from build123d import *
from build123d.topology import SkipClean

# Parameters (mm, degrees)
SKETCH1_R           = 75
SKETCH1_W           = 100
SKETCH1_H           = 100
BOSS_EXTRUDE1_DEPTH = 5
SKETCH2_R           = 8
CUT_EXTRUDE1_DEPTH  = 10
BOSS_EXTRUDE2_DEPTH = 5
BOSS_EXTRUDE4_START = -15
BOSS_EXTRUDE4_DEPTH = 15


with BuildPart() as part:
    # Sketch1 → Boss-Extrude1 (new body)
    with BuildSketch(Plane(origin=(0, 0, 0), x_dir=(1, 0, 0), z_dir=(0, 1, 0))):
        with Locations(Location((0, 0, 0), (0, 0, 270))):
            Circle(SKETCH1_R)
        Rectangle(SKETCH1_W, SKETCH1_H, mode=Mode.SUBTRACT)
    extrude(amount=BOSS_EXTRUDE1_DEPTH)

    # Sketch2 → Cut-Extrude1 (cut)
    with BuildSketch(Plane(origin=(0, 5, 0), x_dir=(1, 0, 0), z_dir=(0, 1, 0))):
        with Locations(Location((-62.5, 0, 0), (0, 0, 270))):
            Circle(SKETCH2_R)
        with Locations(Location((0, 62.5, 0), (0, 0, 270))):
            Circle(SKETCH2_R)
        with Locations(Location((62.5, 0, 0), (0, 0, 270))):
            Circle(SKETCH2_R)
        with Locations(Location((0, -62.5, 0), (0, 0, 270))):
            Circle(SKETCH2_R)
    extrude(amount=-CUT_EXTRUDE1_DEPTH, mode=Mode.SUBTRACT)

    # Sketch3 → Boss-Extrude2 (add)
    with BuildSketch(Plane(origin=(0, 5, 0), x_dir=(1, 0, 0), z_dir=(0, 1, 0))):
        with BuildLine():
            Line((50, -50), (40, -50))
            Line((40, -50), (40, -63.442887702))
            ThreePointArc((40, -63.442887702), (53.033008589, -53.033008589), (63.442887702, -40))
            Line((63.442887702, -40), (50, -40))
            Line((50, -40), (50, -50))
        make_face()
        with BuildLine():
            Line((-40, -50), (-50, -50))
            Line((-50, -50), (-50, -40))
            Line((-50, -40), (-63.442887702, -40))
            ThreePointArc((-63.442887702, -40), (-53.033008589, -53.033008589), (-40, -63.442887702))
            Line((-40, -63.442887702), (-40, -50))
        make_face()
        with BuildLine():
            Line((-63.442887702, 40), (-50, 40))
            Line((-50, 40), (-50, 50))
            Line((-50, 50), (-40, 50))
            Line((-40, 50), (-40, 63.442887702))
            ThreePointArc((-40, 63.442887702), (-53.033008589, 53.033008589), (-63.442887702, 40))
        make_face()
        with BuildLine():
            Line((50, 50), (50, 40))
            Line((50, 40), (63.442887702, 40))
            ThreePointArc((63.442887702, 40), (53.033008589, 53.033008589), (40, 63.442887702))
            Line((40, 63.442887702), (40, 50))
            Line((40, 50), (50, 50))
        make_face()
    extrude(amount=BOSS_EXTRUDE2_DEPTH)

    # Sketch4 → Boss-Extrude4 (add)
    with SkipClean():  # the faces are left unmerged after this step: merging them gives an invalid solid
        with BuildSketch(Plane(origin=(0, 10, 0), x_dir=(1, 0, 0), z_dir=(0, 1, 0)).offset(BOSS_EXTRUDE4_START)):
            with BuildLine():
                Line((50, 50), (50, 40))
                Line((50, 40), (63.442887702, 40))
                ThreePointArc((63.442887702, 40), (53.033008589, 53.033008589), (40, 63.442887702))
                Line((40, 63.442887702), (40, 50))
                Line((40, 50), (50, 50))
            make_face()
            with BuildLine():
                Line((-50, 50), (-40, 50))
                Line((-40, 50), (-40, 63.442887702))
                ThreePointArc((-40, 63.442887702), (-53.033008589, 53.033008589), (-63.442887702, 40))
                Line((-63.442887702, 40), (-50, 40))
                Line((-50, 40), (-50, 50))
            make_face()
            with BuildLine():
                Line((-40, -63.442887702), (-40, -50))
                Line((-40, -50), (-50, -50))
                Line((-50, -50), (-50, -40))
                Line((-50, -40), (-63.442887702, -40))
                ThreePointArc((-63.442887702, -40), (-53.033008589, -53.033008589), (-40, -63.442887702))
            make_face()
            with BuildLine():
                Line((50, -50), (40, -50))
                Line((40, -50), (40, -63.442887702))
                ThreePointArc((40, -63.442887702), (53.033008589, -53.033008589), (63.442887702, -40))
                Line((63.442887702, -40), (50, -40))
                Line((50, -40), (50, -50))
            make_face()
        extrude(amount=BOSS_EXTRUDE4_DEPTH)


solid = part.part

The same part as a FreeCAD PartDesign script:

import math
import FreeCAD as App
import Part
import Sketcher

V = App.Vector

doc = App.newDocument("Part")
body = doc.addObject("PartDesign::Body", "Body")

# Sketch on XZ plane
sketch1 = body.newObject("Sketcher::SketchObject", "Sketch")
sketch1.AttachmentSupport = (doc.getObject("XZ_Plane"), [""])
sketch1.MapMode = "FlatFace"
sketch1.addGeometry([
    Part.Circle(V(0, 0, 0), V(0, 0, 1), 75),  # 0
    Part.LineSegment(V(50, 50, 0), V(-50, 50, 0)),  # 1
    Part.LineSegment(V(-50, 50, 0), V(-50, -50, 0)),  # 2
    Part.LineSegment(V(-50, -50, 0), V(50, -50, 0)),  # 3
    Part.LineSegment(V(50, -50, 0), V(50, 50, 0)),  # 4
], False)
sketch1.addConstraint([
    Sketcher.Constraint("Coincident", 1, 2, 2, 1),
    Sketcher.Constraint("Coincident", 2, 2, 3, 1),
    Sketcher.Constraint("Coincident", 3, 2, 4, 1),
    Sketcher.Constraint("Coincident", 4, 2, 1, 1),
    Sketcher.Constraint("Horizontal", 1),
    Sketcher.Constraint("Vertical", 2),
    Sketcher.Constraint("Horizontal", 3),
    Sketcher.Constraint("Vertical", 4),
    Sketcher.Constraint("Coincident", 0, 3, -1, 1),
    Sketcher.Constraint("Symmetric", 1, 2, 3, 2, -1, 1),
    Sketcher.Constraint("Equal", 3, 2),
    Sketcher.Constraint("Diameter", 0, 150.0),
    Sketcher.Constraint("DistanceX", 1, 2, 1, 1, 100.0),
])
pad1 = body.newObject("PartDesign::Pad", "Pad")
pad1.Profile = sketch1
pad1.Length = 5
pad1.Reversed = True

# Sketch on XZ plane
sketch2 = body.newObject("Sketcher::SketchObject", "Sketch001")
sketch2.AttachmentSupport = (doc.getObject("XZ_Plane"), [""])
sketch2.MapMode = "FlatFace"
sketch2.AttachmentOffset = App.Placement(V(0, 0, -5), App.Rotation())
sketch2.addGeometry([
    Part.Circle(V(-62, 0, 0), V(0, 0, 1), 8),
    Part.Circle(V(0, -62, 0), V(0, 0, 1), 8),
    Part.Circle(V(62, 0, 0), V(0, 0, 1), 8),
    Part.Circle(V(0, 62, 0), V(0, 0, 1), 8),
], False)
sketch2.addConstraint([
    Sketcher.Constraint("Equal", 0, 1),
    Sketcher.Constraint("Equal", 1, 2),
    Sketcher.Constraint("Equal", 2, 3),
    Sketcher.Constraint("Symmetric", 0, 3, 2, 3, -1, 1),
    Sketcher.Constraint("Symmetric", 1, 3, 3, 3, -1, 1),
    Sketcher.Constraint("PointOnObject", 0, 3, -1),
    Sketcher.Constraint("PointOnObject", 1, 3, -2),
    Sketcher.Constraint("Diameter", 0, 16.0),
    Sketcher.Constraint("DistanceX", 0, 3, 2, 3, 125.0),
    Sketcher.Constraint("DistanceY", 1, 3, 3, 3, 125.0),
])
pocket1 = body.newObject("PartDesign::Pocket", "Pocket")
pocket1.Profile = sketch2
pocket1.Length = 10
pocket1.Reversed = True

# Sketch on XZ plane
sketch3 = body.newObject("Sketcher::SketchObject", "Sketch002")
sketch3.AttachmentSupport = (doc.getObject("XZ_Plane"), [""])
sketch3.MapMode = "FlatFace"
sketch3.AttachmentOffset = App.Placement(V(0, 0, -5), App.Rotation())
sketch3.addGeometry([
    Part.LineSegment(V(50, 50, 0), V(40, 50, 0)),  # 0
    Part.LineSegment(V(40, 50, 0), V(40, 63, 0)),  # 1
    Part.ArcOfCircle(Part.Circle(V(0, 0, 0), V(0, 0, 1), 75), math.radians(32), math.radians(58)),  # 2
    Part.LineSegment(V(63, 40, 0), V(50, 40, 0)),  # 3
    Part.LineSegment(V(50, 40, 0), V(50, 50, 0)),  # 4
    Part.LineSegment(V(-40, 50, 0), V(-50, 50, 0)),  # 5
    Part.LineSegment(V(-50, 50, 0), V(-50, 40, 0)),  # 6
    Part.LineSegment(V(-50, 40, 0), V(-63, 40, 0)),  # 7
    Part.ArcOfCircle(Part.Circle(V(0, 0, 0), V(0, 0, 1), 75), math.radians(122), math.radians(148)),  # 8
    Part.LineSegment(V(-40, 63, 0), V(-40, 50, 0)),  # 9
    Part.LineSegment(V(-63, -40, 0), V(-50, -40, 0)),  # 10
    Part.LineSegment(V(-50, -40, 0), V(-50, -50, 0)),  # 11
    Part.LineSegment(V(-50, -50, 0), V(-40, -50, 0)),  # 12
    Part.LineSegment(V(-40, -50, 0), V(-40, -63, 0)),  # 13
    Part.ArcOfCircle(Part.Circle(V(0, 0, 0), V(0, 0, 1), 75), math.radians(-148), math.radians(-122)),  # 14
    Part.LineSegment(V(50, -50, 0), V(50, -40, 0)),  # 15
    Part.LineSegment(V(50, -40, 0), V(63, -40, 0)),  # 16
    Part.ArcOfCircle(Part.Circle(V(0, 0, 0), V(0, 0, 1), 75), math.radians(-58), math.radians(-32)),  # 17
    Part.LineSegment(V(40, -63, 0), V(40, -50, 0)),  # 18
    Part.LineSegment(V(40, -50, 0), V(50, -50, 0)),  # 19
], False)
sketch3.addConstraint([
    Sketcher.Constraint("Coincident", 0, 2, 1, 1),
    Sketcher.Constraint("Coincident", 1, 2, 2, 2),
    Sketcher.Constraint("Coincident", 2, 1, 3, 1),
    Sketcher.Constraint("Coincident", 3, 2, 4, 1),
    Sketcher.Constraint("Coincident", 4, 2, 0, 1),
    Sketcher.Constraint("Coincident", 5, 2, 6, 1),
    Sketcher.Constraint("Coincident", 6, 2, 7, 1),
    Sketcher.Constraint("Coincident", 7, 2, 8, 2),
    Sketcher.Constraint("Coincident", 8, 1, 9, 1),
    Sketcher.Constraint("Coincident", 9, 2, 5, 1),
    Sketcher.Constraint("Coincident", 10, 2, 11, 1),
    Sketcher.Constraint("Coincident", 11, 2, 12, 1),
    Sketcher.Constraint("Coincident", 12, 2, 13, 1),
    Sketcher.Constraint("Coincident", 13, 2, 14, 2),
    Sketcher.Constraint("Coincident", 14, 1, 10, 1),
    Sketcher.Constraint("Coincident", 15, 2, 16, 1),
    Sketcher.Constraint("Coincident", 16, 2, 17, 2),
    Sketcher.Constraint("Coincident", 17, 1, 18, 1),
    Sketcher.Constraint("Coincident", 18, 2, 19, 1),
    Sketcher.Constraint("Coincident", 19, 2, 15, 1),
    Sketcher.Constraint("Horizontal", 0),
    Sketcher.Constraint("Vertical", 1),
    Sketcher.Constraint("Horizontal", 3),
    Sketcher.Constraint("Vertical", 4),
    Sketcher.Constraint("Horizontal", 5),
    Sketcher.Constraint("Vertical", 6),
    Sketcher.Constraint("Horizontal", 7),
    Sketcher.Constraint("Vertical", 9),
    Sketcher.Constraint("Horizontal", 10),
    Sketcher.Constraint("Vertical", 11),
    Sketcher.Constraint("Horizontal", 12),
    Sketcher.Constraint("Vertical", 13),
    Sketcher.Constraint("Vertical", 15),
    Sketcher.Constraint("Horizontal", 16),
    Sketcher.Constraint("Vertical", 18),
    Sketcher.Constraint("Horizontal", 19),
    Sketcher.Constraint("Coincident", 2, 3, -1, 1),
    Sketcher.Constraint("Coincident", 8, 3, -1, 1),
    Sketcher.Constraint("Coincident", 14, 3, -1, 1),
    Sketcher.Constraint("Coincident", 17, 3, -1, 1),
    Sketcher.Constraint("Equal", 2, 8),
    Sketcher.Constraint("Equal", 8, 14),
    Sketcher.Constraint("Equal", 14, 17),
    Sketcher.Constraint("Symmetric", 3, 2, 10, 2, -1, 1),
    Sketcher.Constraint("Symmetric", 0, 2, 12, 2, -1, 1),
    Sketcher.Constraint("Symmetric", 6, 2, 15, 2, -1, 1),
    Sketcher.Constraint("Symmetric", 9, 2, 18, 2, -1, 1),
    Sketcher.Constraint("Symmetric", 4, 2, 5, 2, -2),
    Sketcher.Constraint("Horizontal", 3, 2, 6, 2),
    Sketcher.Constraint("Horizontal", 1, 2, 8, 1),
    Sketcher.Constraint("Equal", 16, 1),
    Sketcher.Constraint("Equal", 19, 4),
    Sketcher.Constraint("Radius", 2, 75.0),
    Sketcher.Constraint("DistanceX", 0, 2, 0, 1, 10.0),
    Sketcher.Constraint("DistanceX", -1, 1, 0, 2, 40.0),
])
pad2 = body.newObject("PartDesign::Pad", "Pad001")
pad2.Profile = sketch3
pad2.Length = 5
pad2.Reversed = True

# Sketch on XZ plane
sketch4 = body.newObject("Sketcher::SketchObject", "Sketch003")
sketch4.AttachmentSupport = (doc.getObject("XZ_Plane"), [""])
sketch4.MapMode = "FlatFace"
sketch4.AttachmentOffset = App.Placement(V(0, 0, 5), App.Rotation())
sketch4.addGeometry([
    Part.LineSegment(V(50, -50, 0), V(50, -40, 0)),  # 0
    Part.LineSegment(V(50, -40, 0), V(63, -40, 0)),  # 1
    Part.ArcOfCircle(Part.Circle(V(0, 0, 0), V(0, 0, 1), 75), math.radians(-58), math.radians(-32)),  # 2
    Part.LineSegment(V(40, -63, 0), V(40, -50, 0)),  # 3
    Part.LineSegment(V(40, -50, 0), V(50, -50, 0)),  # 4
    Part.LineSegment(V(-50, -50, 0), V(-40, -50, 0)),  # 5
    Part.LineSegment(V(-40, -50, 0), V(-40, -63, 0)),  # 6
    Part.ArcOfCircle(Part.Circle(V(0, 0, 0), V(0, 0, 1), 75), math.radians(-148), math.radians(-122)),  # 7
    Part.LineSegment(V(-63, -40, 0), V(-50, -40, 0)),  # 8
    Part.LineSegment(V(-50, -40, 0), V(-50, -50, 0)),  # 9
    Part.LineSegment(V(-40, 63, 0), V(-40, 50, 0)),  # 10
    Part.LineSegment(V(-40, 50, 0), V(-50, 50, 0)),  # 11
    Part.LineSegment(V(-50, 50, 0), V(-50, 40, 0)),  # 12
    Part.LineSegment(V(-50, 40, 0), V(-63, 40, 0)),  # 13
    Part.ArcOfCircle(Part.Circle(V(0, 0, 0), V(0, 0, 1), 75), math.radians(122), math.radians(148)),  # 14
    Part.LineSegment(V(50, 50, 0), V(40, 50, 0)),  # 15
    Part.LineSegment(V(40, 50, 0), V(40, 63, 0)),  # 16
    Part.ArcOfCircle(Part.Circle(V(0, 0, 0), V(0, 0, 1), 75), math.radians(32), math.radians(58)),  # 17
    Part.LineSegment(V(63, 40, 0), V(50, 40, 0)),  # 18
    Part.LineSegment(V(50, 40, 0), V(50, 50, 0)),  # 19
], False)
sketch4.addConstraint([
    Sketcher.Constraint("Coincident", 0, 2, 1, 1),
    Sketcher.Constraint("Coincident", 1, 2, 2, 2),
    Sketcher.Constraint("Coincident", 2, 1, 3, 1),
    Sketcher.Constraint("Coincident", 3, 2, 4, 1),
    Sketcher.Constraint("Coincident", 4, 2, 0, 1),
    Sketcher.Constraint("Coincident", 5, 2, 6, 1),
    Sketcher.Constraint("Coincident", 6, 2, 7, 2),
    Sketcher.Constraint("Coincident", 7, 1, 8, 1),
    Sketcher.Constraint("Coincident", 8, 2, 9, 1),
    Sketcher.Constraint("Coincident", 9, 2, 5, 1),
    Sketcher.Constraint("Coincident", 10, 2, 11, 1),
    Sketcher.Constraint("Coincident", 11, 2, 12, 1),
    Sketcher.Constraint("Coincident", 12, 2, 13, 1),
    Sketcher.Constraint("Coincident", 13, 2, 14, 2),
    Sketcher.Constraint("Coincident", 14, 1, 10, 1),
    Sketcher.Constraint("Coincident", 15, 2, 16, 1),
    Sketcher.Constraint("Coincident", 16, 2, 17, 2),
    Sketcher.Constraint("Coincident", 17, 1, 18, 1),
    Sketcher.Constraint("Coincident", 18, 2, 19, 1),
    Sketcher.Constraint("Coincident", 19, 2, 15, 1),
    Sketcher.Constraint("Vertical", 0),
    Sketcher.Constraint("Horizontal", 1),
    Sketcher.Constraint("Vertical", 3),
    Sketcher.Constraint("Horizontal", 4),
    Sketcher.Constraint("Horizontal", 5),
    Sketcher.Constraint("Vertical", 6),
    Sketcher.Constraint("Horizontal", 8),
    Sketcher.Constraint("Vertical", 9),
    Sketcher.Constraint("Vertical", 10),
    Sketcher.Constraint("Horizontal", 11),
    Sketcher.Constraint("Vertical", 12),
    Sketcher.Constraint("Horizontal", 13),
    Sketcher.Constraint("Horizontal", 15),
    Sketcher.Constraint("Vertical", 16),
    Sketcher.Constraint("Horizontal", 18),
    Sketcher.Constraint("Vertical", 19),
    Sketcher.Constraint("Coincident", 2, 3, -1, 1),
    Sketcher.Constraint("Coincident", 7, 3, -1, 1),
    Sketcher.Constraint("Coincident", 14, 3, -1, 1),
    Sketcher.Constraint("Coincident", 17, 3, -1, 1),
    Sketcher.Constraint("Equal", 2, 7),
    Sketcher.Constraint("Equal", 7, 14),
    Sketcher.Constraint("Equal", 14, 17),
    Sketcher.Constraint("Symmetric", 3, 2, 10, 2, -1, 1),
    Sketcher.Constraint("Symmetric", 0, 2, 12, 2, -1, 1),
    Sketcher.Constraint("Symmetric", 5, 2, 15, 2, -1, 1),
    Sketcher.Constraint("Symmetric", 8, 2, 18, 2, -1, 1),
    Sketcher.Constraint("Symmetric", 3, 2, 5, 2, -2),
    Sketcher.Constraint("Symmetric", 0, 2, 8, 2, -2),
    Sketcher.Constraint("Equal", 15, 0),
    Sketcher.Constraint("Equal", 18, 3),
    Sketcher.Constraint("Radius", 2, 75.0),
    Sketcher.Constraint("DistanceX", 4, 1, 4, 2, 10.0),
    Sketcher.Constraint("DistanceX", -1, 1, 0, 2, 50.0),
])
pad3 = body.newObject("PartDesign::Pad", "Pad002")
pad3.Profile = sketch4
pad3.Length = 15
pad3.Reversed = True

doc.recompute()
